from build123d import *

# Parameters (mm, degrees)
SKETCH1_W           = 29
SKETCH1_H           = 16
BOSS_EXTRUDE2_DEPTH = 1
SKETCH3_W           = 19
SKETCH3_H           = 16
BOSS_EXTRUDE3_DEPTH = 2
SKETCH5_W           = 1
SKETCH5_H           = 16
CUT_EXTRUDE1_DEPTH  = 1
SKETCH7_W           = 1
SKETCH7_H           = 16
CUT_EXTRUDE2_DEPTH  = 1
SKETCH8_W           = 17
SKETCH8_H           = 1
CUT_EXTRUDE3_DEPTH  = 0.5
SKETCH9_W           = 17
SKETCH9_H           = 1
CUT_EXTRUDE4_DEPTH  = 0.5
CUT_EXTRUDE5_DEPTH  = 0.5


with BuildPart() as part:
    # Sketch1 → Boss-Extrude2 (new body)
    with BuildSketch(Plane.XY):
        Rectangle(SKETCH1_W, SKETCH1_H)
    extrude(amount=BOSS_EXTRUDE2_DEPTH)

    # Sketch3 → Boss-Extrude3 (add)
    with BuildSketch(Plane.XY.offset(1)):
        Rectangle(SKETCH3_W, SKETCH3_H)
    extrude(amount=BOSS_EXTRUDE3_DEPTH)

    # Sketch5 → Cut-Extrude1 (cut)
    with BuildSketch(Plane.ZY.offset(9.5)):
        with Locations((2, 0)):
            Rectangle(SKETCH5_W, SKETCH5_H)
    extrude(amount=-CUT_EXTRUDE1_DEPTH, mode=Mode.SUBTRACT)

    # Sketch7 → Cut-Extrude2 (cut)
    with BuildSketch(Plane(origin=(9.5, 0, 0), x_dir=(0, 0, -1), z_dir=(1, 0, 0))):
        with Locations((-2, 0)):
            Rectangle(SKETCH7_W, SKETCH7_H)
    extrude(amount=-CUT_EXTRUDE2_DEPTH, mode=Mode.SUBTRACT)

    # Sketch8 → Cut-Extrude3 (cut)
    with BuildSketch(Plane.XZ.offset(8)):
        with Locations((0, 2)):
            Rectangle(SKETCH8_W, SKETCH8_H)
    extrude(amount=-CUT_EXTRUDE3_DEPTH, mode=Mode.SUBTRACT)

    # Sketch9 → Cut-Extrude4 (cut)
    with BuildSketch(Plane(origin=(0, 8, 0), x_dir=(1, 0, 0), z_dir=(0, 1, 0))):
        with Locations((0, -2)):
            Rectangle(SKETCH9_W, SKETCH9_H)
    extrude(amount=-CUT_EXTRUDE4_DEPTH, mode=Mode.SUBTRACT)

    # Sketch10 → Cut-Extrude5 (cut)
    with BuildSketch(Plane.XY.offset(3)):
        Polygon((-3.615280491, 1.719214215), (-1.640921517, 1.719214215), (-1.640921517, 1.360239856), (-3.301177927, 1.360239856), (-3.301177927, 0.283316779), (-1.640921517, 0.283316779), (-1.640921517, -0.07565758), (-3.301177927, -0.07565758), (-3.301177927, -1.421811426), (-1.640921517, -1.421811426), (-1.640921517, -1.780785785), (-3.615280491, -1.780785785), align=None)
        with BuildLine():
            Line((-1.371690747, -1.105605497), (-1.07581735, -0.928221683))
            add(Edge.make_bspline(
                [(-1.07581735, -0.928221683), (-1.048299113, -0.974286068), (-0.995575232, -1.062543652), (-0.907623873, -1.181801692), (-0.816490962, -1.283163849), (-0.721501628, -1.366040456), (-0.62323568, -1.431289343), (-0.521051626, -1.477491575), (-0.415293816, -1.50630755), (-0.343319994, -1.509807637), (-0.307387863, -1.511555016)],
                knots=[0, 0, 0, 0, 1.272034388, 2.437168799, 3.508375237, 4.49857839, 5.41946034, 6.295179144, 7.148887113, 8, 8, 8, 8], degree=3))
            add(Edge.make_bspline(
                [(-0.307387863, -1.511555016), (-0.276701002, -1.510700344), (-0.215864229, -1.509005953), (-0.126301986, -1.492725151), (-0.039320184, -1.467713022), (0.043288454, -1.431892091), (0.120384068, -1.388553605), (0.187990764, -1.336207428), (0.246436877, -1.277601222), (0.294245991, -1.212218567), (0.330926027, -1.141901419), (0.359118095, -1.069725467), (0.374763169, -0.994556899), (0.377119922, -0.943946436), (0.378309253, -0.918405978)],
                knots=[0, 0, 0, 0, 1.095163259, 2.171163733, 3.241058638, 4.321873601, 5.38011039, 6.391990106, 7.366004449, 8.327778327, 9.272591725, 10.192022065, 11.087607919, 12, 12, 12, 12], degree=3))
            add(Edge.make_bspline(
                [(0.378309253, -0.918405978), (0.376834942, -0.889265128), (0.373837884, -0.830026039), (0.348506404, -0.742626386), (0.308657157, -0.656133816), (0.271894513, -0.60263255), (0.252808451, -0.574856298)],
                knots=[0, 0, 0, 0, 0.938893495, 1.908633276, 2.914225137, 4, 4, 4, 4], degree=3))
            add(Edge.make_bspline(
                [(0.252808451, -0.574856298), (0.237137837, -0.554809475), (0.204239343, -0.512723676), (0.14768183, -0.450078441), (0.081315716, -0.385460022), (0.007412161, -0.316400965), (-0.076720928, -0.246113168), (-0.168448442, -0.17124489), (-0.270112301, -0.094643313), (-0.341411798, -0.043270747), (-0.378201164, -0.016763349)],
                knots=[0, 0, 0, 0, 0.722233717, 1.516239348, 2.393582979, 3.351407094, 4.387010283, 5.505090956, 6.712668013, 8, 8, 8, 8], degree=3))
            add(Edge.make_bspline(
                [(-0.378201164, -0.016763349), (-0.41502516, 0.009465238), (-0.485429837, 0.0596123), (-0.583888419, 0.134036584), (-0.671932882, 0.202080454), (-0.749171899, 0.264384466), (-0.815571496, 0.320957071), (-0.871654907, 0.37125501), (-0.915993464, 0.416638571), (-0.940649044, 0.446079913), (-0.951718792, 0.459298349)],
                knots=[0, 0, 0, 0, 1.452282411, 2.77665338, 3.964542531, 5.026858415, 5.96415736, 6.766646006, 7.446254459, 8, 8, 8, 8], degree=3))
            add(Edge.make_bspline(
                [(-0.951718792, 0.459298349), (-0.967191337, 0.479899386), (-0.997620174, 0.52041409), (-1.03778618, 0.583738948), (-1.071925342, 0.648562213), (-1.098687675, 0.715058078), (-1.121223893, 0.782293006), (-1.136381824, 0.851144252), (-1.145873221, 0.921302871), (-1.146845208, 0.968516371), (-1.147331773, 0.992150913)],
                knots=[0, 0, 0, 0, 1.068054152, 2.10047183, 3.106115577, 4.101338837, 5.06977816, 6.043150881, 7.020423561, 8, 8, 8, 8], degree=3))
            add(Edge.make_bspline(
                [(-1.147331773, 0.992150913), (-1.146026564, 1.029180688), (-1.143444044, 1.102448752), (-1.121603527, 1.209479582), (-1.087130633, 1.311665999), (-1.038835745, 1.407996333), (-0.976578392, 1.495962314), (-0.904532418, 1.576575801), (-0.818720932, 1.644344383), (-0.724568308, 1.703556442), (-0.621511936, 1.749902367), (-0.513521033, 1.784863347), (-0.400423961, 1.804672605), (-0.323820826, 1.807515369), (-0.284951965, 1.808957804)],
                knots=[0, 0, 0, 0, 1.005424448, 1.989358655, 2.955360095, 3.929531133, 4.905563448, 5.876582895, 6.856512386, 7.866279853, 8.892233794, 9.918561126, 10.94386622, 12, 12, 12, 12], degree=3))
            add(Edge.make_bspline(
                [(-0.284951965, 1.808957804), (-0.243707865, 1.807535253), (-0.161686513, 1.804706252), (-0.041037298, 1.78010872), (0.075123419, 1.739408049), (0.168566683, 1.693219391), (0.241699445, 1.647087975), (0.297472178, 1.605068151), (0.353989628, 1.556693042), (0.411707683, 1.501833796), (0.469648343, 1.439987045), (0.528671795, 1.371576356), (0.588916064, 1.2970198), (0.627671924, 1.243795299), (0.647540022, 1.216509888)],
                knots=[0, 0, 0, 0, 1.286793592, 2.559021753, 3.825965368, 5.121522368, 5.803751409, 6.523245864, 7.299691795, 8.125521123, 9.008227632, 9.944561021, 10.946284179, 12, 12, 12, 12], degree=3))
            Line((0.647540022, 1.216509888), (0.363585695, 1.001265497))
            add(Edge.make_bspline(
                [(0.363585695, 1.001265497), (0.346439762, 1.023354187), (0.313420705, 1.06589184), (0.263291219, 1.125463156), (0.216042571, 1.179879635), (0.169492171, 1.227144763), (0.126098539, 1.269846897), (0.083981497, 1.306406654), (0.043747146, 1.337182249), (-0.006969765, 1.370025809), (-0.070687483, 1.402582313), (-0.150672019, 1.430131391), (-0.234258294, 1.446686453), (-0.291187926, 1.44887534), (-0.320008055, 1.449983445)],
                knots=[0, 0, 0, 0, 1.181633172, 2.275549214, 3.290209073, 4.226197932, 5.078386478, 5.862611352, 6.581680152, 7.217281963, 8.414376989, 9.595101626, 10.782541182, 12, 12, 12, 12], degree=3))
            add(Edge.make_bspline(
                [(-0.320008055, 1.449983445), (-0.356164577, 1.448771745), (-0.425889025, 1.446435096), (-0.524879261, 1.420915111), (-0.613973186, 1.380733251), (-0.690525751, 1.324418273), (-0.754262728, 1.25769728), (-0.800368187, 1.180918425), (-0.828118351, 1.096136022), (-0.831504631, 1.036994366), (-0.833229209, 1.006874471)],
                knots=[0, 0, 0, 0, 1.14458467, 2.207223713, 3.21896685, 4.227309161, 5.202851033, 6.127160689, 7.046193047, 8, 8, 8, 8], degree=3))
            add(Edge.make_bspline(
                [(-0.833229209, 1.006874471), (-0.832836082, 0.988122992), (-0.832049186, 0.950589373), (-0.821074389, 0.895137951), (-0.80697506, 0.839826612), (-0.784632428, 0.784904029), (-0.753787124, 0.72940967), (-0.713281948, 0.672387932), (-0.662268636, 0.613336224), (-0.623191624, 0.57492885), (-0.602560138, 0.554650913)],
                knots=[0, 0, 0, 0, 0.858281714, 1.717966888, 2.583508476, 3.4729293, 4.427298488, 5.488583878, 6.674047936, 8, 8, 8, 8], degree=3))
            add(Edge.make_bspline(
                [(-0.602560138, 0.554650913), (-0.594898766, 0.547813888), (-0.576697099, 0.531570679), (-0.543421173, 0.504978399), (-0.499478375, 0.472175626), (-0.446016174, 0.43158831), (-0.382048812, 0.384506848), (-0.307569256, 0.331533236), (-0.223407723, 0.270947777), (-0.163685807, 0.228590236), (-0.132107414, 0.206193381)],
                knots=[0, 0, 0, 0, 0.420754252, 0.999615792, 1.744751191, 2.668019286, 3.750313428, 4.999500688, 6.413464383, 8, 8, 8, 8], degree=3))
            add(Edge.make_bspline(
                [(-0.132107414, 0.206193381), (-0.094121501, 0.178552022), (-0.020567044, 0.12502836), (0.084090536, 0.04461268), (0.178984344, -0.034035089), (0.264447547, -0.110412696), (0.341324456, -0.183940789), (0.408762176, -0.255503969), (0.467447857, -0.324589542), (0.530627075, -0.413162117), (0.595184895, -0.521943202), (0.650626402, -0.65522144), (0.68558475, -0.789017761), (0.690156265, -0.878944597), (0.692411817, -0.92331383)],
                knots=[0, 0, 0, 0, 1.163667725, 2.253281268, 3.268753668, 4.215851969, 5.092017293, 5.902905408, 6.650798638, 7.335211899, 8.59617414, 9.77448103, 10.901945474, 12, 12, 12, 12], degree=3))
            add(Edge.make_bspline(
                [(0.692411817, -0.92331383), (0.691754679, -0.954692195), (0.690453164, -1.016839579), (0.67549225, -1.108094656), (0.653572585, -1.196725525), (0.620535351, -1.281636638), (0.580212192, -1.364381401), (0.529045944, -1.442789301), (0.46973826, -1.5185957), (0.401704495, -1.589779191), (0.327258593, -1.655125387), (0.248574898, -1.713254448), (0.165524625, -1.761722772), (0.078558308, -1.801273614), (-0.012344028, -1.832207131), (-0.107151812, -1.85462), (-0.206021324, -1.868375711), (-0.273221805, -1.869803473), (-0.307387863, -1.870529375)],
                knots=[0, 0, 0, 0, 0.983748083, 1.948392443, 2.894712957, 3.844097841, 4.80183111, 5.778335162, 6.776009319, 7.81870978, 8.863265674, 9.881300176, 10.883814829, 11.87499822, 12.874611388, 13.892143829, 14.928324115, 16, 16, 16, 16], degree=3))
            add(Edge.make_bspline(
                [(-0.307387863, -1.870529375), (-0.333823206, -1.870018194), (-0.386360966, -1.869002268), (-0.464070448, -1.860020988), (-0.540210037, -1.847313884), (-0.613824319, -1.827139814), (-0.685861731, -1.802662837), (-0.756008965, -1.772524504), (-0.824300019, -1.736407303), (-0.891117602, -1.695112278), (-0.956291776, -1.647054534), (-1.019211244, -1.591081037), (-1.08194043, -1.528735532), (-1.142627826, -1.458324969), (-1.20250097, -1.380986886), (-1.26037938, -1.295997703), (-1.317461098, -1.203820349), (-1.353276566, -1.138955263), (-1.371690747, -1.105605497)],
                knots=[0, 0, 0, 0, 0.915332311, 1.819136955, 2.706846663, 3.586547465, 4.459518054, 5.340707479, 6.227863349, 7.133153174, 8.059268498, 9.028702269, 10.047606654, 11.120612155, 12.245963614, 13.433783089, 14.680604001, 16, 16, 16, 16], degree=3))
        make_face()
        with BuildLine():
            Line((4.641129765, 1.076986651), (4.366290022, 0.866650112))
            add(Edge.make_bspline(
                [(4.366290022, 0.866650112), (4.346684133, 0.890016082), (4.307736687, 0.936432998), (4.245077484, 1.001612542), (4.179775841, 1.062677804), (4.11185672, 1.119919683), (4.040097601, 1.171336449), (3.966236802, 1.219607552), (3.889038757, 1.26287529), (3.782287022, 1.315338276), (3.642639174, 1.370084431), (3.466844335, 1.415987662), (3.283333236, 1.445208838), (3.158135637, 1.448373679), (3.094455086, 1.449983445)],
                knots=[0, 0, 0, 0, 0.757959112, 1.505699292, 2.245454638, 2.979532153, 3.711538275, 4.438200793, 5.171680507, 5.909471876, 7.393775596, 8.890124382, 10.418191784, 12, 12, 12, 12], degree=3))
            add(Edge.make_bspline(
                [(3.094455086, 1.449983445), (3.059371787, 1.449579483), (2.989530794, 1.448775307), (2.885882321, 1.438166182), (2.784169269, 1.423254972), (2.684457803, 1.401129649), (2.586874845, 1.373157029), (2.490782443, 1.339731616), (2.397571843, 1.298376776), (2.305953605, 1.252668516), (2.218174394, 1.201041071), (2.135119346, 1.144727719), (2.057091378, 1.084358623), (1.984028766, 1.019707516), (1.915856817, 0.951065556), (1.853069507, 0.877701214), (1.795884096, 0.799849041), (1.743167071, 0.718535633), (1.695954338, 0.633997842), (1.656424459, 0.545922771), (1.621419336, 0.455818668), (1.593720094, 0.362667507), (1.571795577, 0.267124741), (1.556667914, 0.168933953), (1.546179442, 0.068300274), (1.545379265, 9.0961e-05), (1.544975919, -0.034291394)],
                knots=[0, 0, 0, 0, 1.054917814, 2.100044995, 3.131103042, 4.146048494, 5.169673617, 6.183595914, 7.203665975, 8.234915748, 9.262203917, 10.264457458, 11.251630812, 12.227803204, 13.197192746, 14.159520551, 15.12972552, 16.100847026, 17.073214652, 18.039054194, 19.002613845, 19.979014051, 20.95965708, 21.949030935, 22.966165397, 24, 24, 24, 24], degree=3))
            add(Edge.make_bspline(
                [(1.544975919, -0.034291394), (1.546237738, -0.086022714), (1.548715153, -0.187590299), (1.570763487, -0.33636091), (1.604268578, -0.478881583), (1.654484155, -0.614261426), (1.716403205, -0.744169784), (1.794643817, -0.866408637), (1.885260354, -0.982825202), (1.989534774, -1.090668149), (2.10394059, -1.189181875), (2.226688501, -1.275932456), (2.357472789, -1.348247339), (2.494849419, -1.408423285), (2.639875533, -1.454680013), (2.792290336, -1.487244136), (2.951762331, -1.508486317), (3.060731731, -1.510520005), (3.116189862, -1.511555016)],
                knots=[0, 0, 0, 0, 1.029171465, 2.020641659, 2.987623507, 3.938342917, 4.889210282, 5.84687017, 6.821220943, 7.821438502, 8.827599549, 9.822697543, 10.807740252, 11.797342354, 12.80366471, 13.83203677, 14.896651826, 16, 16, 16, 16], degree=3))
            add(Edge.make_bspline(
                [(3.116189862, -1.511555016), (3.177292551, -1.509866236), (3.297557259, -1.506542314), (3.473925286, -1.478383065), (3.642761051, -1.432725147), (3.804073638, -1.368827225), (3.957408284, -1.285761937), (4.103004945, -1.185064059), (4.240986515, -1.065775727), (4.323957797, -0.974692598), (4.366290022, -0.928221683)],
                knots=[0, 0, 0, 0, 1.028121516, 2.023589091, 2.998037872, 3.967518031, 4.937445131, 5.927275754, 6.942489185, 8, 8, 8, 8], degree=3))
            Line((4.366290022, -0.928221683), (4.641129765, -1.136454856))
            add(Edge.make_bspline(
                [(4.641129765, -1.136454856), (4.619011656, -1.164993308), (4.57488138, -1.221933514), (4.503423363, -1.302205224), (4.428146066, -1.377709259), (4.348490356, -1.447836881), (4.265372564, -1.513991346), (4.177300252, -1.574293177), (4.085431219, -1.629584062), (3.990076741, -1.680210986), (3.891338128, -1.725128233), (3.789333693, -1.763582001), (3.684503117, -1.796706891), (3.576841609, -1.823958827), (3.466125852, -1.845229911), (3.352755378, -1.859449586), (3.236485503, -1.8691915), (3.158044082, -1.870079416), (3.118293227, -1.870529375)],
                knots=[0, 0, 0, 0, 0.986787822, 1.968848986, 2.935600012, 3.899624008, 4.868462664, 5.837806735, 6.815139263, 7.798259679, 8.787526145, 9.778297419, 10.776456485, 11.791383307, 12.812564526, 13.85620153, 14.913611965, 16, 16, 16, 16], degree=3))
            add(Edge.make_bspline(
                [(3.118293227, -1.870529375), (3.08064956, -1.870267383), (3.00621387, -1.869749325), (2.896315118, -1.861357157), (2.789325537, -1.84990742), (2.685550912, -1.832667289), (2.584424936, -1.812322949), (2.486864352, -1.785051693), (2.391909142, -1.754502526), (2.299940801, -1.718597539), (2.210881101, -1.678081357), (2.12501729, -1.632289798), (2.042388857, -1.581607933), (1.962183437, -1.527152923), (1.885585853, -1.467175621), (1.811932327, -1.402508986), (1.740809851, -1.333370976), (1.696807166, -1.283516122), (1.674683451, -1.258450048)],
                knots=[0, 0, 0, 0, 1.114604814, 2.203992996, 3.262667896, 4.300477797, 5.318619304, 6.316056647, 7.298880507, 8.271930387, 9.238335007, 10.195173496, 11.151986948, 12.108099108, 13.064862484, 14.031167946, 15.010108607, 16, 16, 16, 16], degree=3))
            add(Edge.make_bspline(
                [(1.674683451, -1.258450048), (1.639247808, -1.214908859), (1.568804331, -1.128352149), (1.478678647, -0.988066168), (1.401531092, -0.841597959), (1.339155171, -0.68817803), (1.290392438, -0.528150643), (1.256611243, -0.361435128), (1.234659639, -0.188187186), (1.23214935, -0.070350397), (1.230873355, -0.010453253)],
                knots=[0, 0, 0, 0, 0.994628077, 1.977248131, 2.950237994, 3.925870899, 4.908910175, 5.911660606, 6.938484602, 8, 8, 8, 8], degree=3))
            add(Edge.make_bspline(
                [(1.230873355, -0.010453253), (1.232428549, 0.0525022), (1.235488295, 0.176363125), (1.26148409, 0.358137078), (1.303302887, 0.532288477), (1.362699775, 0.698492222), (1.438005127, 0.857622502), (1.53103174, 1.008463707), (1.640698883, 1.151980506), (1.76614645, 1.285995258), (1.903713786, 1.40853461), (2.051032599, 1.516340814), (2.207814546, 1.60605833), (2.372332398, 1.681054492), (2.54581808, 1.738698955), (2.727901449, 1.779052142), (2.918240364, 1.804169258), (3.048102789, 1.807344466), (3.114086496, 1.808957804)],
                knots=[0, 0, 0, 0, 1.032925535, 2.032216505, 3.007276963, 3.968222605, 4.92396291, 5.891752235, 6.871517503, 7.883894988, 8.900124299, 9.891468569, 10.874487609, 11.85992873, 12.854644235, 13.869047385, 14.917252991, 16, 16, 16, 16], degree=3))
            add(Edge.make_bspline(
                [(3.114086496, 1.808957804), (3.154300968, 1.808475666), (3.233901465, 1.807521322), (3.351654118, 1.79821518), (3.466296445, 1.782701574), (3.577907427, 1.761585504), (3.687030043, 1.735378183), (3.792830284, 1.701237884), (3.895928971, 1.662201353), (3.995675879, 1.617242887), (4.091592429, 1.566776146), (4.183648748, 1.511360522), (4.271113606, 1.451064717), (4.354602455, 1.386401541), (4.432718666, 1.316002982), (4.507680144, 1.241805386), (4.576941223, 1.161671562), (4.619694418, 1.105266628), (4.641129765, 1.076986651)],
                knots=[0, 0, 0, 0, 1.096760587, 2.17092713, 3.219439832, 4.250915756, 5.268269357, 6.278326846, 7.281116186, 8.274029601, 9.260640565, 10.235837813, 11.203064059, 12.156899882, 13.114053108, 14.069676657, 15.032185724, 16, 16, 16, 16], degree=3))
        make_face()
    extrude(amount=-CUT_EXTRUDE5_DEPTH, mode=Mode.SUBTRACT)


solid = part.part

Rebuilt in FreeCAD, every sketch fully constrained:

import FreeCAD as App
import Part
import Sketcher
Q = App.Units.Quantity

doc = App.newDocument("Part")
body = doc.addObject("PartDesign::Body", "Body")

# Sketch on XY plane
sketch1 = body.newObject("Sketcher::SketchObject", "Sketch")
sketch1.AttachmentSupport = (doc.getObject("XY_Plane"), [""])
sketch1.MapMode = "FlatFace"
sketch1.addGeometry(Part.LineSegment(App.Vector(-14, 8, 0), App.Vector(-14, -8, 0)), False)
sketch1.addGeometry(Part.LineSegment(App.Vector(-14, -8, 0), App.Vector(14, -8, 0)), False)
sketch1.addGeometry(Part.LineSegment(App.Vector(14, -8, 0), App.Vector(14, 8, 0)), False)
sketch1.addGeometry(Part.LineSegment(App.Vector(14, 8, 0), App.Vector(-14, 8, 0)), False)
sketch1.addConstraint(Sketcher.Constraint("Coincident", 0, 2, 1, 1))
sketch1.addConstraint(Sketcher.Constraint("Coincident", 1, 2, 2, 1))
sketch1.addConstraint(Sketcher.Constraint("Coincident", 2, 2, 3, 1))
sketch1.addConstraint(Sketcher.Constraint("Coincident", 3, 2, 0, 1))
sketch1.addConstraint(Sketcher.Constraint("Vertical", 0))
sketch1.addConstraint(Sketcher.Constraint("Horizontal", 1))
sketch1.addConstraint(Sketcher.Constraint("Vertical", 2))
sketch1.addConstraint(Sketcher.Constraint("Horizontal", 3))
sketch1.addConstraint(Sketcher.Constraint("Symmetric", 0, 2, 2, 2, -1, 1))
sketch1.addConstraint(Sketcher.Constraint("DistanceX", 1, 1, 1, 2, Q("29 mm")))
sketch1.addConstraint(Sketcher.Constraint("DistanceY", 0, 2, 0, 1, Q("16 mm")))
pad1 = body.newObject("PartDesign::Pad", "Pad")
pad1.Profile = sketch1
pad1.Length = 1

# Sketch on XY plane
sketch2 = body.newObject("Sketcher::SketchObject", "Sketch001")
sketch2.AttachmentSupport = (doc.getObject("XY_Plane"), [""])
sketch2.MapMode = "FlatFace"
sketch2.AttachmentOffset = App.Placement(App.Vector(0, 0, 1), App.Rotation())
sketch2.addGeometry(Part.LineSegment(App.Vector(-10, 8, 0), App.Vector(-10, -8, 0)), False)
sketch2.addGeometry(Part.LineSegment(App.Vector(-10, -8, 0), App.Vector(10, -8, 0)), False)
sketch2.addGeometry(Part.LineSegment(App.Vector(10, -8, 0), App.Vector(10, 8, 0)), False)
sketch2.addGeometry(Part.LineSegment(App.Vector(10, 8, 0), App.Vector(-10, 8, 0)), False)
sketch2.addConstraint(Sketcher.Constraint("Coincident", 0, 2, 1, 1))
sketch2.addConstraint(Sketcher.Constraint("Coincident", 1, 2, 2, 1))
sketch2.addConstraint(Sketcher.Constraint("Coincident", 2, 2, 3, 1))
sketch2.addConstraint(Sketcher.Constraint("Coincident", 3, 2, 0, 1))
sketch2.addConstraint(Sketcher.Constraint("Vertical", 0))
sketch2.addConstraint(Sketcher.Constraint("Horizontal", 1))
sketch2.addConstraint(Sketcher.Constraint("Vertical", 2))
sketch2.addConstraint(Sketcher.Constraint("Horizontal", 3))
sketch2.addConstraint(Sketcher.Constraint("Symmetric", 0, 2, 2, 2, -1, 1))
sketch2.addConstraint(Sketcher.Constraint("DistanceX", 1, 1, 1, 2, Q("19 mm")))
sketch2.addConstraint(Sketcher.Constraint("DistanceY", 0, 2, 0, 1, Q("16 mm")))
pad2 = body.newObject("PartDesign::Pad", "Pad001")
pad2.Profile = sketch2
pad2.Length = 2

# Sketch on YZ plane
sketch3 = body.newObject("Sketcher::SketchObject", "Sketch002")
sketch3.AttachmentSupport = (doc.getObject("YZ_Plane"), [""])
sketch3.MapMode = "FlatFace"
sketch3.AttachmentOffset = App.Placement(App.Vector(0, 0, -9.5), App.Rotation())
sketch3.addGeometry(Part.LineSegment(App.Vector(8, 1.5, 0), App.Vector(-8, 1.5, 0)), False)
sketch3.addGeometry(Part.LineSegment(App.Vector(-8, 1.5, 0), App.Vector(-8, 2.5, 0)), False)
sketch3.addGeometry(Part.LineSegment(App.Vector(-8, 2.5, 0), App.Vector(8, 2.5, 0)), False)
sketch3.addGeometry(Part.LineSegment(App.Vector(8, 2.5, 0), App.Vector(8, 1.5, 0)), False)
sketch3.addConstraint(Sketcher.Constraint("Coincident", 0, 2, 1, 1))
sketch3.addConstraint(Sketcher.Constraint("Coincident", 1, 2, 2, 1))
sketch3.addConstraint(Sketcher.Constraint("Coincident", 2, 2, 3, 1))
sketch3.addConstraint(Sketcher.Constraint("Coincident", 3, 2, 0, 1))
sketch3.addConstraint(Sketcher.Constraint("Horizontal", 0))
sketch3.addConstraint(Sketcher.Constraint("Vertical", 1))
sketch3.addConstraint(Sketcher.Constraint("Horizontal", 2))
sketch3.addConstraint(Sketcher.Constraint("Vertical", 3))
sketch3.addConstraint(Sketcher.Constraint("DistanceX", 0, 2, 0, 1, Q("16 mm")))
sketch3.addConstraint(Sketcher.Constraint("DistanceY", 1, 1, 1, 2, Q("1 mm")))
sketch3.addConstraint(Sketcher.Constraint("DistanceX", 0, 2, -1, 1, Q("8 mm")))
sketch3.addConstraint(Sketcher.Constraint("DistanceY", -1, 1, 0, 2, Q("1.5 mm")))
pocket1 = body.newObject("PartDesign::Pocket", "Pocket")
pocket1.Profile = sketch3
pocket1.Length = 1
pocket1.Reversed = True

# Sketch on YZ plane
sketch4 = body.newObject("Sketcher::SketchObject", "Sketch003")
sketch4.AttachmentSupport = (doc.getObject("YZ_Plane"), [""])
sketch4.MapMode = "FlatFace"
sketch4.AttachmentOffset = App.Placement(App.Vector(0, 0, 9.5), App.Rotation())
sketch4.addGeometry(Part.LineSegment(App.Vector(8, 2.5, 0), App.Vector(-8, 2.5, 0)), False)
sketch4.addGeometry(Part.LineSegment(App.Vector(-8, 2.5, 0), App.Vector(-8, 1.5, 0)), False)
sketch4.addGeometry(Part.LineSegment(App.Vector(-8, 1.5, 0), App.Vector(8, 1.5, 0)), False)
sketch4.addGeometry(Part.LineSegment(App.Vector(8, 1.5, 0), App.Vector(8, 2.5, 0)), False)
sketch4.addConstraint(Sketcher.Constraint("Coincident", 0, 2, 1, 1))
sketch4.addConstraint(Sketcher.Constraint("Coincident", 1, 2, 2, 1))
sketch4.addConstraint(Sketcher.Constraint("Coincident", 2, 2, 3, 1))
sketch4.addConstraint(Sketcher.Constraint("Coincident", 3, 2, 0, 1))
sketch4.addConstraint(Sketcher.Constraint("Horizontal", 0))
sketch4.addConstraint(Sketcher.Constraint("Vertical", 1))
sketch4.addConstraint(Sketcher.Constraint("Horizontal", 2))
sketch4.addConstraint(Sketcher.Constraint("Vertical", 3))
sketch4.addConstraint(Sketcher.Constraint("DistanceX", 0, 2, 0, 1, Q("16 mm")))
sketch4.addConstraint(Sketcher.Constraint("DistanceY", 1, 2, 1, 1, Q("1 mm")))
sketch4.addConstraint(Sketcher.Constraint("DistanceX", 0, 2, -1, 1, Q("8 mm")))
sketch4.addConstraint(Sketcher.Constraint("DistanceY", -1, 1, 0, 2, Q("2.5 mm")))
pocket2 = body.newObject("PartDesign::Pocket", "Pocket001")
pocket2.Profile = sketch4
pocket2.Length = 1

# Sketch on XZ plane
sketch5 = body.newObject("Sketcher::SketchObject", "Sketch004")
sketch5.AttachmentSupport = (doc.getObject("XZ_Plane"), [""])
sketch5.MapMode = "FlatFace"
sketch5.AttachmentOffset = App.Placement(App.Vector(0, 0, 8), App.Rotation())
sketch5.addGeometry(Part.LineSegment(App.Vector(-8.5, 2.5, 0), App.Vector(-8.5, 1.5, 0)), False)
sketch5.addGeometry(Part.LineSegment(App.Vector(-8.5, 1.5, 0), App.Vector(8.5, 1.5, 0)), False)
sketch5.addGeometry(Part.LineSegment(App.Vector(8.5, 1.5, 0), App.Vector(8.5, 2.5, 0)), False)
sketch5.addGeometry(Part.LineSegment(App.Vector(8.5, 2.5, 0), App.Vector(-8.5, 2.5, 0)), False)
sketch5.addConstraint(Sketcher.Constraint("Coincident", 0, 2, 1, 1))
sketch5.addConstraint(Sketcher.Constraint("Coincident", 1, 2, 2, 1))
sketch5.addConstraint(Sketcher.Constraint("Coincident", 2, 2, 3, 1))
sketch5.addConstraint(Sketcher.Constraint("Coincident", 3, 2, 0, 1))
sketch5.addConstraint(Sketcher.Constraint("Vertical", 0))
sketch5.addConstraint(Sketcher.Constraint("Horizontal", 1))
sketch5.addConstraint(Sketcher.Constraint("Vertical", 2))
sketch5.addConstraint(Sketcher.Constraint("Horizontal", 3))
sketch5.addConstraint(Sketcher.Constraint("DistanceX", 1, 1, 1, 2, Q("17 mm")))
sketch5.addConstraint(Sketcher.Constraint("DistanceY", 0, 2, 0, 1, Q("1 mm")))
sketch5.addConstraint(Sketcher.Constraint("DistanceX", 0, 2, -1, 1, Q("8.5 mm")))
sketch5.addConstraint(Sketcher.Constraint("DistanceY", -1, 1, 0, 2, Q("1.5 mm")))
pocket3 = body.newObject("PartDesign::Pocket", "Pocket002")
pocket3.Profile = sketch5
pocket3.Length = 0.5

# Sketch on XZ plane
sketch6 = body.newObject("Sketcher::SketchObject", "Sketch005")
sketch6.AttachmentSupport = (doc.getObject("XZ_Plane"), [""])
sketch6.MapMode = "FlatFace"
sketch6.AttachmentOffset = App.Placement(App.Vector(0, 0, -8), App.Rotation())
sketch6.addGeometry(Part.LineSegment(App.Vector(-8.5, 1.5, 0), App.Vector(-8.5, 2.5, 0)), False)
sketch6.addGeometry(Part.LineSegment(App.Vector(-8.5, 2.5, 0), App.Vector(8.5, 2.5, 0)), False)
sketch6.addGeometry(Part.LineSegment(App.Vector(8.5, 2.5, 0), App.Vector(8.5, 1.5, 0)), False)
sketch6.addGeometry(Part.LineSegment(App.Vector(8.5, 1.5, 0), App.Vector(-8.5, 1.5, 0)), False)
sketch6.addConstraint(Sketcher.Constraint("Coincident", 0, 2, 1, 1))
sketch6.addConstraint(Sketcher.Constraint("Coincident", 1, 2, 2, 1))
sketch6.addConstraint(Sketcher.Constraint("Coincident", 2, 2, 3, 1))
sketch6.addConstraint(Sketcher.Constraint("Coincident", 3, 2, 0, 1))
sketch6.addConstraint(Sketcher.Constraint("Vertical", 0))
sketch6.addConstraint(Sketcher.Constraint("Horizontal", 1))
sketch6.addConstraint(Sketcher.Constraint("Vertical", 2))
sketch6.addConstraint(Sketcher.Constraint("Horizontal", 3))
sketch6.addConstraint(Sketcher.Constraint("DistanceX", 1, 1, 1, 2, Q("17 mm")))
sketch6.addConstraint(Sketcher.Constraint("DistanceY", 0, 1, 0, 2, Q("1 mm")))
sketch6.addConstraint(Sketcher.Constraint("DistanceX", 0, 2, -1, 1, Q("8.5 mm")))
sketch6.addConstraint(Sketcher.Constraint("DistanceY", -1, 1, 0, 2, Q("2.5 mm")))
pocket4 = body.newObject("PartDesign::Pocket", "Pocket003")
pocket4.Profile = sketch6
pocket4.Length = 0.5
pocket4.Reversed = True

# Sketch on XY plane
sketch7 = body.newObject("Sketcher::SketchObject", "Sketch006")
sketch7.AttachmentSupport = (doc.getObject("XY_Plane"), [""])
sketch7.MapMode = "FlatFace"
sketch7.AttachmentOffset = App.Placement(App.Vector(0, 0, 3), App.Rotation())
sketch7.addGeometry(Part.LineSegment(App.Vector(-1.640922, 1.719214, 0), App.Vector(-3.61528, 1.719214, 0)), False)
sketch7.addGeometry(Part.LineSegment(App.Vector(-3.61528, 1.719214, 0), App.Vector(-3.61528, -1.780786, 0)), False)
sketch7.addGeometry(Part.LineSegment(App.Vector(-3.61528, -1.780786, 0), App.Vector(-1.640922, -1.780786, 0)), False)
sketch7.addGeometry(Part.LineSegment(App.Vector(-1.640922, -1.780786, 0), App.Vector(-1.640922, -1.421811, 0)), False)
sketch7.addGeometry(Part.LineSegment(App.Vector(-1.640922, -1.421811, 0), App.Vector(-3.301178, -1.421811, 0)), False)
sketch7.addGeometry(Part.LineSegment(App.Vector(-3.301178, -1.421811, 0), App.Vector(-3.301178, -0.075658, 0)), False)
sketch7.addGeometry(Part.LineSegment(App.Vector(-3.301178, -0.075658, 0), App.Vector(-1.640922, -0.075658, 0)), False)
sketch7.addGeometry(Part.LineSegment(App.Vector(-1.640922, -0.075658, 0), App.Vector(-1.640922, 0.283317, 0)), False)
sketch7.addGeometry(Part.LineSegment(App.Vector(-1.640922, 0.283317, 0), App.Vector(-3.301178, 0.283317, 0)), False)
sketch7.addGeometry(Part.LineSegment(App.Vector(-3.301178, 0.283317, 0), App.Vector(-3.301178, 1.36024, 0)), False)
sketch7.addGeometry(Part.LineSegment(App.Vector(-3.301178, 1.36024, 0), App.Vector(-1.640922, 1.36024, 0)), False)
sketch7.addGeometry(Part.LineSegment(App.Vector(-1.640922, 1.36024, 0), App.Vector(-1.640922, 1.719214, 0)), False)
sketch7.addGeometry(Part.LineSegment(App.Vector(-1.075817, -0.928222, 0), App.Vector(-1.371691, -1.105605, 0)), False)
sketch7.addGeometry(Part.BSplineCurve([App.Vector(-0.307388, -1.870529, 0), App.Vector(-0.333823, -1.870018, 0), App.Vector(-0.386361, -1.869002, 0), App.Vector(-0.46407, -1.860021, 0), App.Vector(-0.54021, -1.847314, 0), App.Vector(-0.613824, -1.82714, 0), App.Vector(-0.685862, -1.802663, 0), App.Vector(-0.756009, -1.772525, 0), App.Vector(-0.8243, -1.736407, 0), App.Vector(-0.891118, -1.695112, 0), App.Vector(-0.956292, -1.647055, 0), App.Vector(-1.019211, -1.591081, 0), App.Vector(-1.08194, -1.528736, 0), App.Vector(-1.142628, -1.458325, 0), App.Vector(-1.202501, -1.380987, 0), App.Vector(-1.260379, -1.295998, 0), App.Vector(-1.317461, -1.20382, 0), App.Vector(-1.353277, -1.138955, 0), App.Vector(-1.371691, -1.105605, 0)], [4, 1, 1, 1, 1, 1, 1, 1, 1, 1, 1, 1, 1, 1, 1, 1, 4], [0, 0.915332311, 1.819136955, 2.706846663, 3.586547465, 4.459518054, 5.340707479, 6.227863349, 7.133153174, 8.059268498, 9.028702269, 10.047606654, 11.120612155, 12.245963614, 13.433783089, 14.680604001, 16], False, 3, [1, 1, 1, 1, 1, 1, 1, 1, 1, 1, 1, 1, 1, 1, 1, 1, 1, 1, 1], False), False)
sketch7.addGeometry(Part.BSplineCurve([App.Vector(0.692412, -0.923314, 0), App.Vector(0.691755, -0.954692, 0), App.Vector(0.690453, -1.01684, 0), App.Vector(0.675492, -1.108095, 0), App.Vector(0.653573, -1.196726, 0), App.Vector(0.620535, -1.281637, 0), App.Vector(0.580212, -1.364381, 0), App.Vector(0.529046, -1.442789, 0), App.Vector(0.469738, -1.518596, 0), App.Vector(0.401704, -1.589779, 0), App.Vector(0.327259, -1.655125, 0), App.Vector(0.248575, -1.713254, 0), App.Vector(0.165525, -1.761723, 0), App.Vector(0.078558, -1.801274, 0), App.Vector(-0.012344, -1.832207, 0), App.Vector(-0.107152, -1.85462, 0), App.Vector(-0.206021, -1.868376, 0), App.Vector(-0.273222, -1.869803, 0), App.Vector(-0.307388, -1.870529, 0)], [4, 1, 1, 1, 1, 1, 1, 1, 1, 1, 1, 1, 1, 1, 1, 1, 4], [0, 0.983748083, 1.948392443, 2.894712957, 3.844097841, 4.80183111, 5.778335162, 6.776009319, 7.81870978, 8.863265674, 9.881300176, 10.883814829, 11.87499822, 12.874611388, 13.892143829, 14.928324115, 16], False, 3, [1, 1, 1, 1, 1, 1, 1, 1, 1, 1, 1, 1, 1, 1, 1, 1, 1, 1, 1], False), False)
sketch7.addGeometry(Part.BSplineCurve([App.Vector(-0.132107, 0.206193, 0), App.Vector(-0.094122, 0.178552, 0), App.Vector(-0.020567, 0.125028, 0), App.Vector(0.084091, 0.044613, 0), App.Vector(0.178984, -0.034035, 0), App.Vector(0.264448, -0.110413, 0), App.Vector(0.341324, -0.183941, 0), App.Vector(0.408762, -0.255504, 0), App.Vector(0.467448, -0.32459, 0), App.Vector(0.530627, -0.413162, 0), App.Vector(0.595185, -0.521943, 0), App.Vector(0.650626, -0.655221, 0), App.Vector(0.685585, -0.789018, 0), App.Vector(0.690156, -0.878945, 0), App.Vector(0.692412, -0.923314, 0)], [4, 1, 1, 1, 1, 1, 1, 1, 1, 1, 1, 1, 4], [0, 1.163667725, 2.253281268, 3.268753668, 4.215851969, 5.092017293, 5.902905408, 6.650798638, 7.335211899, 8.59617414, 9.77448103, 10.901945474, 12], False, 3, [1, 1, 1, 1, 1, 1, 1, 1, 1, 1, 1, 1, 1, 1, 1], False), False)
sketch7.addGeometry(Part.BSplineCurve([App.Vector(-0.60256, 0.554651, 0), App.Vector(-0.594899, 0.547814, 0), App.Vector(-0.576697, 0.531571, 0), App.Vector(-0.543421, 0.504978, 0), App.Vector(-0.499478, 0.472176, 0), App.Vector(-0.446016, 0.431588, 0), App.Vector(-0.382049, 0.384507, 0), App.Vector(-0.307569, 0.331533, 0), App.Vector(-0.223408, 0.270948, 0), App.Vector(-0.163686, 0.22859, 0), App.Vector(-0.132107, 0.206193, 0)], [4, 1, 1, 1, 1, 1, 1, 1, 4], [0, 0.420754252, 0.999615792, 1.744751191, 2.668019286, 3.750313428, 4.999500688, 6.413464383, 8], False, 3, [1, 1, 1, 1, 1, 1, 1, 1, 1, 1, 1], False), False)
sketch7.addGeometry(Part.BSplineCurve([App.Vector(-0.833229, 1.006874, 0), App.Vector(-0.832836, 0.988123, 0), App.Vector(-0.832049, 0.950589, 0), App.Vector(-0.821074, 0.895138, 0), App.Vector(-0.806975, 0.839827, 0), App.Vector(-0.784632, 0.784904, 0), App.Vector(-0.753787, 0.72941, 0), App.Vector(-0.713282, 0.672388, 0), App.Vector(-0.662269, 0.613336, 0), App.Vector(-0.623192, 0.574929, 0), App.Vector(-0.60256, 0.554651, 0)], [4, 1, 1, 1, 1, 1, 1, 1, 4], [0, 0.858281714, 1.717966888, 2.583508476, 3.4729293, 4.427298488, 5.488583878, 6.674047936, 8], False, 3, [1, 1, 1, 1, 1, 1, 1, 1, 1, 1, 1], False), False)
sketch7.addGeometry(Part.BSplineCurve([App.Vector(-0.320008, 1.449983, 0), App.Vector(-0.356165, 1.448772, 0), App.Vector(-0.425889, 1.446435, 0), App.Vector(-0.524879, 1.420915, 0), App.Vector(-0.613973, 1.380733, 0), App.Vector(-0.690526, 1.324418, 0), App.Vector(-0.754263, 1.257697, 0), App.Vector(-0.800368, 1.180918, 0), App.Vector(-0.828118, 1.096136, 0), App.Vector(-0.831505, 1.036994, 0), App.Vector(-0.833229, 1.006874, 0)], [4, 1, 1, 1, 1, 1, 1, 1, 4], [0, 1.14458467, 2.207223713, 3.21896685, 4.227309161, 5.202851033, 6.127160689, 7.046193047, 8], False, 3, [1, 1, 1, 1, 1, 1, 1, 1, 1, 1, 1], False), False)
sketch7.addGeometry(Part.BSplineCurve([App.Vector(0.363586, 1.001265, 0), App.Vector(0.34644, 1.023354, 0), App.Vector(0.313421, 1.065892, 0), App.Vector(0.263291, 1.125463, 0), App.Vector(0.216043, 1.17988, 0), App.Vector(0.169492, 1.227145, 0), App.Vector(0.126099, 1.269847, 0), App.Vector(0.083981, 1.306407, 0), App.Vector(0.043747, 1.337182, 0), App.Vector(-0.00697, 1.370026, 0), App.Vector(-0.070687, 1.402582, 0), App.Vector(-0.150672, 1.430131, 0), App.Vector(-0.234258, 1.446686, 0), App.Vector(-0.291188, 1.448875, 0), App.Vector(-0.320008, 1.449983, 0)], [4, 1, 1, 1, 1, 1, 1, 1, 1, 1, 1, 1, 4], [0, 1.181633172, 2.275549214, 3.290209073, 4.226197932, 5.078386478, 5.862611352, 6.581680152, 7.217281963, 8.414376989, 9.595101626, 10.782541182, 12], False, 3, [1, 1, 1, 1, 1, 1, 1, 1, 1, 1, 1, 1, 1, 1, 1], False), False)
sketch7.addGeometry(Part.LineSegment(App.Vector(0.363586, 1.001265, 0), App.Vector(0.64754, 1.21651, 0)), False)
sketch7.addGeometry(Part.BSplineCurve([App.Vector(-0.284952, 1.808958, 0), App.Vector(-0.243708, 1.807535, 0), App.Vector(-0.161687, 1.804706, 0), App.Vector(-0.041037, 1.780109, 0), App.Vector(0.075123, 1.739408, 0), App.Vector(0.168567, 1.693219, 0), App.Vector(0.241699, 1.647088, 0), App.Vector(0.297472, 1.605068, 0), App.Vector(0.35399, 1.556693, 0), App.Vector(0.411708, 1.501834, 0), App.Vector(0.469648, 1.439987, 0), App.Vector(0.528672, 1.371576, 0), App.Vector(0.588916, 1.29702, 0), App.Vector(0.627672, 1.243795, 0), App.Vector(0.64754, 1.21651, 0)], [4, 1, 1, 1, 1, 1, 1, 1, 1, 1, 1, 1, 4], [0, 1.286793592, 2.559021753, 3.825965368, 5.121522368, 5.803751409, 6.523245864, 7.299691795, 8.125521123, 9.008227632, 9.944561021, 10.946284179, 12], False, 3, [1, 1, 1, 1, 1, 1, 1, 1, 1, 1, 1, 1, 1, 1, 1], False), False)
sketch7.addGeometry(Part.BSplineCurve([App.Vector(-1.147332, 0.992151, 0), App.Vector(-1.146027, 1.029181, 0), App.Vector(-1.143444, 1.102449, 0), App.Vector(-1.121604, 1.20948, 0), App.Vector(-1.087131, 1.311666, 0), App.Vector(-1.038836, 1.407996, 0), App.Vector(-0.976578, 1.495962, 0), App.Vector(-0.904532, 1.576576, 0), App.Vector(-0.818721, 1.644344, 0), App.Vector(-0.724568, 1.703556, 0), App.Vector(-0.621512, 1.749902, 0), App.Vector(-0.513521, 1.784863, 0), App.Vector(-0.400424, 1.804673, 0), App.Vector(-0.323821, 1.807515, 0), App.Vector(-0.284952, 1.808958, 0)], [4, 1, 1, 1, 1, 1, 1, 1, 1, 1, 1, 1, 4], [0, 1.005424448, 1.989358655, 2.955360095, 3.929531133, 4.905563448, 5.876582895, 6.856512386, 7.866279853, 8.892233794, 9.918561126, 10.94386622, 12], False, 3, [1, 1, 1, 1, 1, 1, 1, 1, 1, 1, 1, 1, 1, 1, 1], False), False)
sketch7.addGeometry(Part.BSplineCurve([App.Vector(-0.951719, 0.459298, 0), App.Vector(-0.967191, 0.479899, 0), App.Vector(-0.99762, 0.520414, 0), App.Vector(-1.037786, 0.583739, 0), App.Vector(-1.071925, 0.648562, 0), App.Vector(-1.098688, 0.715058, 0), App.Vector(-1.121224, 0.782293, 0), App.Vector(-1.136382, 0.851144, 0), App.Vector(-1.145873, 0.921303, 0), App.Vector(-1.146845, 0.968516, 0), App.Vector(-1.147332, 0.992151, 0)], [4, 1, 1, 1, 1, 1, 1, 1, 4], [0, 1.068054152, 2.10047183, 3.106115577, 4.101338837, 5.06977816, 6.043150881, 7.020423561, 8], False, 3, [1, 1, 1, 1, 1, 1, 1, 1, 1, 1, 1], False), False)
sketch7.addGeometry(Part.BSplineCurve([App.Vector(-0.378201, -0.016763, 0), App.Vector(-0.415025, 0.009465, 0), App.Vector(-0.48543, 0.059612, 0), App.Vector(-0.583888, 0.134037, 0), App.Vector(-0.671933, 0.20208, 0), App.Vector(-0.749172, 0.264384, 0), App.Vector(-0.815571, 0.320957, 0), App.Vector(-0.871655, 0.371255, 0), App.Vector(-0.915993, 0.416639, 0), App.Vector(-0.940649, 0.44608, 0), App.Vector(-0.951719, 0.459298, 0)], [4, 1, 1, 1, 1, 1, 1, 1, 4], [0, 1.452282411, 2.77665338, 3.964542531, 5.026858415, 5.96415736, 6.766646006, 7.446254459, 8], False, 3, [1, 1, 1, 1, 1, 1, 1, 1, 1, 1, 1], False), False)
sketch7.addGeometry(Part.BSplineCurve([App.Vector(0.252808, -0.574856, 0), App.Vector(0.237138, -0.554809, 0), App.Vector(0.204239, -0.512724, 0), App.Vector(0.147682, -0.450078, 0), App.Vector(0.081316, -0.38546, 0), App.Vector(0.007412, -0.316401, 0), App.Vector(-0.076721, -0.246113, 0), App.Vector(-0.168448, -0.171245, 0), App.Vector(-0.270112, -0.094643, 0), App.Vector(-0.341412, -0.043271, 0), App.Vector(-0.378201, -0.016763, 0)], [4, 1, 1, 1, 1, 1, 1, 1, 4], [0, 0.722233717, 1.516239348, 2.393582979, 3.351407094, 4.387010283, 5.505090956, 6.712668013, 8], False, 3, [1, 1, 1, 1, 1, 1, 1, 1, 1, 1, 1], False), False)
sketch7.addGeometry(Part.BSplineCurve([App.Vector(0.378309, -0.918406, 0), App.Vector(0.376835, -0.889265, 0), App.Vector(0.373838, -0.830026, 0), App.Vector(0.348506, -0.742626, 0), App.Vector(0.308657, -0.656134, 0), App.Vector(0.271895, -0.602633, 0), App.Vector(0.252808, -0.574856, 0)], [4, 1, 1, 1, 4], [0, 0.938893495, 1.908633276, 2.914225137, 4], False, 3, [1, 1, 1, 1, 1, 1, 1], False), False)
sketch7.addGeometry(Part.BSplineCurve([App.Vector(-0.307388, -1.511555, 0), App.Vector(-0.276701, -1.5107, 0), App.Vector(-0.215864, -1.509006, 0), App.Vector(-0.126302, -1.492725, 0), App.Vector(-0.03932, -1.467713, 0), App.Vector(0.043288, -1.431892, 0), App.Vector(0.120384, -1.388554, 0), App.Vector(0.187991, -1.336207, 0), App.Vector(0.246437, -1.277601, 0), App.Vector(0.294246, -1.212219, 0), App.Vector(0.330926, -1.141901, 0), App.Vector(0.359118, -1.069725, 0), App.Vector(0.374763, -0.994557, 0), App.Vector(0.37712, -0.943946, 0), App.Vector(0.378309, -0.918406, 0)], [4, 1, 1, 1, 1, 1, 1, 1, 1, 1, 1, 1, 4], [0, 1.095163259, 2.171163733, 3.241058638, 4.321873601, 5.38011039, 6.391990106, 7.366004449, 8.327778327, 9.272591725, 10.192022065, 11.087607919, 12], False, 3, [1, 1, 1, 1, 1, 1, 1, 1, 1, 1, 1, 1, 1, 1, 1], False), False)
sketch7.addGeometry(Part.BSplineCurve([App.Vector(-1.075817, -0.928222, 0), App.Vector(-1.048299, -0.974286, 0), App.Vector(-0.995575, -1.062544, 0), App.Vector(-0.907624, -1.181802, 0), App.Vector(-0.816491, -1.283164, 0), App.Vector(-0.721502, -1.36604, 0), App.Vector(-0.623236, -1.431289, 0), App.Vector(-0.521052, -1.477492, 0), App.Vector(-0.415294, -1.506308, 0), App.Vector(-0.34332, -1.509808, 0), App.Vector(-0.307388, -1.511555, 0)], [4, 1, 1, 1, 1, 1, 1, 1, 4], [0, 1.272034388, 2.437168799, 3.508375237, 4.49857839, 5.41946034, 6.295179144, 7.148887113, 8], False, 3, [1, 1, 1, 1, 1, 1, 1, 1, 1, 1, 1], False), False)
sketch7.addGeometry(Part.LineSegment(App.Vector(4.36629, 0.86665, 0), App.Vector(4.64113, 1.076987, 0)), False)
sketch7.addGeometry(Part.BSplineCurve([App.Vector(3.114086, 1.808958, 0), App.Vector(3.154301, 1.808476, 0), App.Vector(3.233901, 1.807521, 0), App.Vector(3.351654, 1.798215, 0), App.Vector(3.466296, 1.782702, 0), App.Vector(3.577907, 1.761586, 0), App.Vector(3.68703, 1.735378, 0), App.Vector(3.79283, 1.701238, 0), App.Vector(3.895929, 1.662201, 0), App.Vector(3.995676, 1.617243, 0), App.Vector(4.091592, 1.566776, 0), App.Vector(4.183649, 1.511361, 0), App.Vector(4.271114, 1.451065, 0), App.Vector(4.354602, 1.386402, 0), App.Vector(4.432719, 1.316003, 0), App.Vector(4.50768, 1.241805, 0), App.Vector(4.576941, 1.161672, 0), App.Vector(4.619694, 1.105267, 0), App.Vector(4.64113, 1.076987, 0)], [4, 1, 1, 1, 1, 1, 1, 1, 1, 1, 1, 1, 1, 1, 1, 1, 4], [0, 1.096760587, 2.17092713, 3.219439832, 4.250915756, 5.268269357, 6.278326846, 7.281116186, 8.274029601, 9.260640565, 10.235837813, 11.203064059, 12.156899882, 13.114053108, 14.069676657, 15.032185724, 16], False, 3, [1, 1, 1, 1, 1, 1, 1, 1, 1, 1, 1, 1, 1, 1, 1, 1, 1, 1, 1], False), False)
sketch7.addGeometry(Part.BSplineCurve([App.Vector(1.230873, -0.010453, 0), App.Vector(1.232429, 0.052502, 0), App.Vector(1.235488, 0.176363, 0), App.Vector(1.261484, 0.358137, 0), App.Vector(1.303303, 0.532288, 0), App.Vector(1.3627, 0.698492, 0), App.Vector(1.438005, 0.857623, 0), App.Vector(1.531032, 1.008464, 0), App.Vector(1.640699, 1.151981, 0), App.Vector(1.766146, 1.285995, 0), App.Vector(1.903714, 1.408535, 0), App.Vector(2.051033, 1.516341, 0), App.Vector(2.207815, 1.606058, 0), App.Vector(2.372332, 1.681054, 0), App.Vector(2.545818, 1.738699, 0), App.Vector(2.727901, 1.779052, 0), App.Vector(2.91824, 1.804169, 0), App.Vector(3.048103, 1.807344, 0), App.Vector(3.114086, 1.808958, 0)], [4, 1, 1, 1, 1, 1, 1, 1, 1, 1, 1, 1, 1, 1, 1, 1, 4], [0, 1.032925535, 2.032216505, 3.007276963, 3.968222605, 4.92396291, 5.891752235, 6.871517503, 7.883894988, 8.900124299, 9.891468569, 10.874487609, 11.85992873, 12.854644235, 13.869047385, 14.917252991, 16], False, 3, [1, 1, 1, 1, 1, 1, 1, 1, 1, 1, 1, 1, 1, 1, 1, 1, 1, 1, 1], False), False)
sketch7.addGeometry(Part.BSplineCurve([App.Vector(1.674683, -1.25845, 0), App.Vector(1.639248, -1.214909, 0), App.Vector(1.568804, -1.128352, 0), App.Vector(1.478679, -0.988066, 0), App.Vector(1.401531, -0.841598, 0), App.Vector(1.339155, -0.688178, 0), App.Vector(1.290392, -0.528151, 0), App.Vector(1.256611, -0.361435, 0), App.Vector(1.23466, -0.188187, 0), App.Vector(1.232149, -0.07035, 0), App.Vector(1.230873, -0.010453, 0)], [4, 1, 1, 1, 1, 1, 1, 1, 4], [0, 0.994628077, 1.977248131, 2.950237994, 3.925870899, 4.908910175, 5.911660606, 6.938484602, 8], False, 3, [1, 1, 1, 1, 1, 1, 1, 1, 1, 1, 1], False), False)
sketch7.addGeometry(Part.BSplineCurve([App.Vector(3.118293, -1.870529, 0), App.Vector(3.08065, -1.870267, 0), App.Vector(3.006214, -1.869749, 0), App.Vector(2.896315, -1.861357, 0), App.Vector(2.789326, -1.849907, 0), App.Vector(2.685551, -1.832667, 0), App.Vector(2.584425, -1.812323, 0), App.Vector(2.486864, -1.785052, 0), App.Vector(2.391909, -1.754503, 0), App.Vector(2.299941, -1.718598, 0), App.Vector(2.210881, -1.678081, 0), App.Vector(2.125017, -1.63229, 0), App.Vector(2.042389, -1.581608, 0), App.Vector(1.962183, -1.527153, 0), App.Vector(1.885586, -1.467176, 0), App.Vector(1.811932, -1.402509, 0), App.Vector(1.74081, -1.333371, 0), App.Vector(1.696807, -1.283516, 0), App.Vector(1.674683, -1.25845, 0)], [4, 1, 1, 1, 1, 1, 1, 1, 1, 1, 1, 1, 1, 1, 1, 1, 4], [0, 1.114604814, 2.203992996, 3.262667896, 4.300477797, 5.318619304, 6.316056647, 7.298880507, 8.271930387, 9.238335007, 10.195173496, 11.151986948, 12.108099108, 13.064862484, 14.031167946, 15.010108607, 16], False, 3, [1, 1, 1, 1, 1, 1, 1, 1, 1, 1, 1, 1, 1, 1, 1, 1, 1, 1, 1], False), False)
sketch7.addGeometry(Part.BSplineCurve([App.Vector(4.64113, -1.136455, 0), App.Vector(4.619012, -1.164993, 0), App.Vector(4.574881, -1.221934, 0), App.Vector(4.503423, -1.302205, 0), App.Vector(4.428146, -1.377709, 0), App.Vector(4.34849, -1.447837, 0), App.Vector(4.265373, -1.513991, 0), App.Vector(4.1773, -1.574293, 0), App.Vector(4.085431, -1.629584, 0), App.Vector(3.990077, -1.680211, 0), App.Vector(3.891338, -1.725128, 0), App.Vector(3.789334, -1.763582, 0), App.Vector(3.684503, -1.796707, 0), App.Vector(3.576842, -1.823959, 0), App.Vector(3.466126, -1.84523, 0), App.Vector(3.352755, -1.85945, 0), App.Vector(3.236486, -1.869191, 0), App.Vector(3.158044, -1.870079, 0), App.Vector(3.118293, -1.870529, 0)], [4, 1, 1, 1, 1, 1, 1, 1, 1, 1, 1, 1, 1, 1, 1, 1, 4], [0, 0.986787822, 1.968848986, 2.935600012, 3.899624008, 4.868462664, 5.837806735, 6.815139263, 7.798259679, 8.787526145, 9.778297419, 10.776456485, 11.791383307, 12.812564526, 13.85620153, 14.913611965, 16], False, 3, [1, 1, 1, 1, 1, 1, 1, 1, 1, 1, 1, 1, 1, 1, 1, 1, 1, 1, 1], False), False)
sketch7.addGeometry(Part.LineSegment(App.Vector(4.64113, -1.136455, 0), App.Vector(4.36629, -0.928222, 0)), False)
sketch7.addGeometry(Part.BSplineCurve([App.Vector(3.11619, -1.511555, 0), App.Vector(3.177293, -1.509866, 0), App.Vector(3.297557, -1.506542, 0), App.Vector(3.473925, -1.478383, 0), App.Vector(3.642761, -1.432725, 0), App.Vector(3.804074, -1.368827, 0), App.Vector(3.957408, -1.285762, 0), App.Vector(4.103005, -1.185064, 0), App.Vector(4.240987, -1.065776, 0), App.Vector(4.323958, -0.974693, 0), App.Vector(4.36629, -0.928222, 0)], [4, 1, 1, 1, 1, 1, 1, 1, 4], [0, 1.028121516, 2.023589091, 2.998037872, 3.967518031, 4.937445131, 5.927275754, 6.942489185, 8], False, 3, [1, 1, 1, 1, 1, 1, 1, 1, 1, 1, 1], False), False)
sketch7.addGeometry(Part.BSplineCurve([App.Vector(1.544976, -0.034291, 0), App.Vector(1.546238, -0.086023, 0), App.Vector(1.548715, -0.18759, 0), App.Vector(1.570763, -0.336361, 0), App.Vector(1.604269, -0.478882, 0), App.Vector(1.654484, -0.614261, 0), App.Vector(1.716403, -0.74417, 0), App.Vector(1.794644, -0.866409, 0), App.Vector(1.88526, -0.982825, 0), App.Vector(1.989535, -1.090668, 0), App.Vector(2.103941, -1.189182, 0), App.Vector(2.226689, -1.275932, 0), App.Vector(2.357473, -1.348247, 0), App.Vector(2.494849, -1.408423, 0), App.Vector(2.639876, -1.45468, 0), App.Vector(2.79229, -1.487244, 0), App.Vector(2.951762, -1.508486, 0), App.Vector(3.060732, -1.51052, 0), App.Vector(3.11619, -1.511555, 0)], [4, 1, 1, 1, 1, 1, 1, 1, 1, 1, 1, 1, 1, 1, 1, 1, 4], [0, 1.029171465, 2.020641659, 2.987623507, 3.938342917, 4.889210282, 5.84687017, 6.821220943, 7.821438502, 8.827599549, 9.822697543, 10.807740252, 11.797342354, 12.80366471, 13.83203677, 14.896651826, 16], False, 3, [1, 1, 1, 1, 1, 1, 1, 1, 1, 1, 1, 1, 1, 1, 1, 1, 1, 1, 1], False), False)
sketch7.addGeometry(Part.BSplineCurve([App.Vector(3.094455, 1.449983, 0), App.Vector(3.059372, 1.449579, 0), App.Vector(2.989531, 1.448775, 0), App.Vector(2.885882, 1.438166, 0), App.Vector(2.784169, 1.423255, 0), App.Vector(2.684458, 1.40113, 0), App.Vector(2.586875, 1.373157, 0), App.Vector(2.490782, 1.339732, 0), App.Vector(2.397572, 1.298377, 0), App.Vector(2.305954, 1.252669, 0), App.Vector(2.218174, 1.201041, 0), App.Vector(2.135119, 1.144728, 0), App.Vector(2.057091, 1.084359, 0), App.Vector(1.984029, 1.019708, 0), App.Vector(1.915857, 0.951066, 0), App.Vector(1.85307, 0.877701, 0), App.Vector(1.795884, 0.799849, 0), App.Vector(1.743167, 0.718536, 0), App.Vector(1.695954, 0.633998, 0), App.Vector(1.656424, 0.545923, 0), App.Vector(1.621419, 0.455819, 0), App.Vector(1.59372, 0.362668, 0), App.Vector(1.571796, 0.267125, 0), App.Vector(1.556668, 0.168934, 0), App.Vector(1.546179, 0.0683, 0), App.Vector(1.545379, 0.000091, 0), App.Vector(1.544976, -0.034291, 0)], [4, 1, 1, 1, 1, 1, 1, 1, 1, 1, 1, 1, 1, 1, 1, 1, 1, 1, 1, 1, 1, 1, 1, 1, 4], [0, 1.054917814, 2.100044995, 3.131103042, 4.146048494, 5.169673617, 6.183595914, 7.203665975, 8.234915748, 9.262203917, 10.264457458, 11.251630812, 12.227803204, 13.197192746, 14.159520551, 15.12972552, 16.100847026, 17.073214652, 18.039054194, 19.002613845, 19.979014051, 20.95965708, 21.949030935, 22.966165397, 24], False, 3, [1, 1, 1, 1, 1, 1, 1, 1, 1, 1, 1, 1, 1, 1, 1, 1, 1, 1, 1, 1, 1, 1, 1, 1, 1, 1, 1], False), False)
sketch7.addGeometry(Part.BSplineCurve([App.Vector(4.36629, 0.86665, 0), App.Vector(4.346684, 0.890016, 0), App.Vector(4.307737, 0.936433, 0), App.Vector(4.245077, 1.001613, 0), App.Vector(4.179776, 1.062678, 0), App.Vector(4.111857, 1.11992, 0), App.Vector(4.040098, 1.171336, 0), App.Vector(3.966237, 1.219608, 0), App.Vector(3.889039, 1.262875, 0), App.Vector(3.782287, 1.315338, 0), App.Vector(3.642639, 1.370084, 0), App.Vector(3.466844, 1.415988, 0), App.Vector(3.283333, 1.445209, 0), App.Vector(3.158136, 1.448374, 0), App.Vector(3.094455, 1.449983, 0)], [4, 1, 1, 1, 1, 1, 1, 1, 1, 1, 1, 1, 4], [0, 0.757959112, 1.505699292, 2.245454638, 2.979532153, 3.711538275, 4.438200793, 5.171680507, 5.909471876, 7.393775596, 8.890124382, 10.418191784, 12], False, 3, [1, 1, 1, 1, 1, 1, 1, 1, 1, 1, 1, 1, 1, 1, 1], False), False)
sketch7.addConstraint(Sketcher.Constraint("Block", 13))
sketch7.addConstraint(Sketcher.Constraint("Block", 14))
sketch7.addConstraint(Sketcher.Constraint("Block", 15))
sketch7.addConstraint(Sketcher.Constraint("Block", 16))
sketch7.addConstraint(Sketcher.Constraint("Block", 17))
sketch7.addConstraint(Sketcher.Constraint("Block", 18))
sketch7.addConstraint(Sketcher.Constraint("Block", 19))
sketch7.addConstraint(Sketcher.Constraint("Block", 21))
sketch7.addConstraint(Sketcher.Constraint("Block", 22))
sketch7.addConstraint(Sketcher.Constraint("Block", 23))
sketch7.addConstraint(Sketcher.Constraint("Block", 24))
sketch7.addConstraint(Sketcher.Constraint("Block", 25))
sketch7.addConstraint(Sketcher.Constraint("Block", 26))
sketch7.addConstraint(Sketcher.Constraint("Block", 27))
sketch7.addConstraint(Sketcher.Constraint("Block", 28))
sketch7.addConstraint(Sketcher.Constraint("Block", 30))
sketch7.addConstraint(Sketcher.Constraint("Block", 31))
sketch7.addConstraint(Sketcher.Constraint("Block", 32))
sketch7.addConstraint(Sketcher.Constraint("Block", 33))
sketch7.addConstraint(Sketcher.Constraint("Block", 34))
sketch7.addConstraint(Sketcher.Constraint("Block", 36))
sketch7.addConstraint(Sketcher.Constraint("Block", 37))
sketch7.addConstraint(Sketcher.Constraint("Block", 38))
sketch7.addConstraint(Sketcher.Constraint("Block", 39))
sketch7.addConstraint(Sketcher.Constraint("Coincident", 0, 2, 1, 1))
sketch7.addConstraint(Sketcher.Constraint("Coincident", 1, 2, 2, 1))
sketch7.addConstraint(Sketcher.Constraint("Coincident", 2, 2, 3, 1))
sketch7.addConstraint(Sketcher.Constraint("Coincident", 3, 2, 4, 1))
sketch7.addConstraint(Sketcher.Constraint("Coincident", 4, 2, 5, 1))
sketch7.addConstraint(Sketcher.Constraint("Coincident", 5, 2, 6, 1))
sketch7.addConstraint(Sketcher.Constraint("Coincident", 6, 2, 7, 1))
sketch7.addConstraint(Sketcher.Constraint("Coincident", 7, 2, 8, 1))
sketch7.addConstraint(Sketcher.Constraint("Coincident", 8, 2, 9, 1))
sketch7.addConstraint(Sketcher.Constraint("Coincident", 9, 2, 10, 1))
sketch7.addConstraint(Sketcher.Constraint("Coincident", 10, 2, 11, 1))
sketch7.addConstraint(Sketcher.Constraint("Coincident", 11, 2, 0, 1))
sketch7.addConstraint(Sketcher.Constraint("Coincident", 12, 2, 13, 2))
sketch7.addConstraint(Sketcher.Constraint("Coincident", 19, 1, 20, 1))
sketch7.addConstraint(Sketcher.Constraint("Coincident", 20, 2, 21, 2))
sketch7.addConstraint(Sketcher.Constraint("Coincident", 28, 1, 12, 1))
sketch7.addConstraint(Sketcher.Constraint("Coincident", 29, 2, 30, 2))
sketch7.addConstraint(Sketcher.Constraint("Coincident", 34, 1, 35, 1))
sketch7.addConstraint(Sketcher.Constraint("Coincident", 35, 2, 36, 2))
sketch7.addConstraint(Sketcher.Constraint("Coincident", 39, 1, 29, 1))
sketch7.addConstraint(Sketcher.Constraint("Horizontal", 0))
sketch7.addConstraint(Sketcher.Constraint("Vertical", 1))
sketch7.addConstraint(Sketcher.Constraint("Horizontal", 2))
sketch7.addConstraint(Sketcher.Constraint("Vertical", 3))
sketch7.addConstraint(Sketcher.Constraint("Horizontal", 4))
sketch7.addConstraint(Sketcher.Constraint("Vertical", 5))
sketch7.addConstraint(Sketcher.Constraint("Horizontal", 6))
sketch7.addConstraint(Sketcher.Constraint("Vertical", 7))
sketch7.addConstraint(Sketcher.Constraint("Horizontal", 8))
sketch7.addConstraint(Sketcher.Constraint("Vertical", 9))
sketch7.addConstraint(Sketcher.Constraint("Horizontal", 10))
sketch7.addConstraint(Sketcher.Constraint("Vertical", 11))
sketch7.addConstraint(Sketcher.Constraint("Vertical", 3, 2, 6, 2))
sketch7.addConstraint(Sketcher.Constraint("Vertical", 5, 2, 8, 2))
sketch7.addConstraint(Sketcher.Constraint("Vertical", 7, 2, 10, 2))
sketch7.addConstraint(Sketcher.Constraint("Equal", 3, 7))
sketch7.addConstraint(Sketcher.Constraint("Equal", 7, 11))
sketch7.addConstraint(Sketcher.Constraint("DistanceY", 1, 2, 1, 1, Q("3.5 mm")))
sketch7.addConstraint(Sketcher.Constraint("DistanceX", 0, 2, 0, 1, Q("1.974359 mm")))
sketch7.addConstraint(Sketcher.Constraint("DistanceX", 4, 2, 4, 1, Q("1.660256 mm")))
sketch7.addConstraint(Sketcher.Constraint("DistanceY", 3, 1, 3, 2, Q("0.358974 mm")))
sketch7.addConstraint(Sketcher.Constraint("DistanceY", 5, 1, 5, 2, Q("1.346154 mm")))
sketch7.addConstraint(Sketcher.Constraint("DistanceX", 0, 2, -1, 1, Q("3.61528 mm")))
sketch7.addConstraint(Sketcher.Constraint("DistanceY", 3, 2, -1, 1, Q("1.421811 mm")))
pocket5 = body.newObject("PartDesign::Pocket", "Pocket004")
pocket5.Profile = sketch7
pocket5.Length = 0.5

doc.recompute()
